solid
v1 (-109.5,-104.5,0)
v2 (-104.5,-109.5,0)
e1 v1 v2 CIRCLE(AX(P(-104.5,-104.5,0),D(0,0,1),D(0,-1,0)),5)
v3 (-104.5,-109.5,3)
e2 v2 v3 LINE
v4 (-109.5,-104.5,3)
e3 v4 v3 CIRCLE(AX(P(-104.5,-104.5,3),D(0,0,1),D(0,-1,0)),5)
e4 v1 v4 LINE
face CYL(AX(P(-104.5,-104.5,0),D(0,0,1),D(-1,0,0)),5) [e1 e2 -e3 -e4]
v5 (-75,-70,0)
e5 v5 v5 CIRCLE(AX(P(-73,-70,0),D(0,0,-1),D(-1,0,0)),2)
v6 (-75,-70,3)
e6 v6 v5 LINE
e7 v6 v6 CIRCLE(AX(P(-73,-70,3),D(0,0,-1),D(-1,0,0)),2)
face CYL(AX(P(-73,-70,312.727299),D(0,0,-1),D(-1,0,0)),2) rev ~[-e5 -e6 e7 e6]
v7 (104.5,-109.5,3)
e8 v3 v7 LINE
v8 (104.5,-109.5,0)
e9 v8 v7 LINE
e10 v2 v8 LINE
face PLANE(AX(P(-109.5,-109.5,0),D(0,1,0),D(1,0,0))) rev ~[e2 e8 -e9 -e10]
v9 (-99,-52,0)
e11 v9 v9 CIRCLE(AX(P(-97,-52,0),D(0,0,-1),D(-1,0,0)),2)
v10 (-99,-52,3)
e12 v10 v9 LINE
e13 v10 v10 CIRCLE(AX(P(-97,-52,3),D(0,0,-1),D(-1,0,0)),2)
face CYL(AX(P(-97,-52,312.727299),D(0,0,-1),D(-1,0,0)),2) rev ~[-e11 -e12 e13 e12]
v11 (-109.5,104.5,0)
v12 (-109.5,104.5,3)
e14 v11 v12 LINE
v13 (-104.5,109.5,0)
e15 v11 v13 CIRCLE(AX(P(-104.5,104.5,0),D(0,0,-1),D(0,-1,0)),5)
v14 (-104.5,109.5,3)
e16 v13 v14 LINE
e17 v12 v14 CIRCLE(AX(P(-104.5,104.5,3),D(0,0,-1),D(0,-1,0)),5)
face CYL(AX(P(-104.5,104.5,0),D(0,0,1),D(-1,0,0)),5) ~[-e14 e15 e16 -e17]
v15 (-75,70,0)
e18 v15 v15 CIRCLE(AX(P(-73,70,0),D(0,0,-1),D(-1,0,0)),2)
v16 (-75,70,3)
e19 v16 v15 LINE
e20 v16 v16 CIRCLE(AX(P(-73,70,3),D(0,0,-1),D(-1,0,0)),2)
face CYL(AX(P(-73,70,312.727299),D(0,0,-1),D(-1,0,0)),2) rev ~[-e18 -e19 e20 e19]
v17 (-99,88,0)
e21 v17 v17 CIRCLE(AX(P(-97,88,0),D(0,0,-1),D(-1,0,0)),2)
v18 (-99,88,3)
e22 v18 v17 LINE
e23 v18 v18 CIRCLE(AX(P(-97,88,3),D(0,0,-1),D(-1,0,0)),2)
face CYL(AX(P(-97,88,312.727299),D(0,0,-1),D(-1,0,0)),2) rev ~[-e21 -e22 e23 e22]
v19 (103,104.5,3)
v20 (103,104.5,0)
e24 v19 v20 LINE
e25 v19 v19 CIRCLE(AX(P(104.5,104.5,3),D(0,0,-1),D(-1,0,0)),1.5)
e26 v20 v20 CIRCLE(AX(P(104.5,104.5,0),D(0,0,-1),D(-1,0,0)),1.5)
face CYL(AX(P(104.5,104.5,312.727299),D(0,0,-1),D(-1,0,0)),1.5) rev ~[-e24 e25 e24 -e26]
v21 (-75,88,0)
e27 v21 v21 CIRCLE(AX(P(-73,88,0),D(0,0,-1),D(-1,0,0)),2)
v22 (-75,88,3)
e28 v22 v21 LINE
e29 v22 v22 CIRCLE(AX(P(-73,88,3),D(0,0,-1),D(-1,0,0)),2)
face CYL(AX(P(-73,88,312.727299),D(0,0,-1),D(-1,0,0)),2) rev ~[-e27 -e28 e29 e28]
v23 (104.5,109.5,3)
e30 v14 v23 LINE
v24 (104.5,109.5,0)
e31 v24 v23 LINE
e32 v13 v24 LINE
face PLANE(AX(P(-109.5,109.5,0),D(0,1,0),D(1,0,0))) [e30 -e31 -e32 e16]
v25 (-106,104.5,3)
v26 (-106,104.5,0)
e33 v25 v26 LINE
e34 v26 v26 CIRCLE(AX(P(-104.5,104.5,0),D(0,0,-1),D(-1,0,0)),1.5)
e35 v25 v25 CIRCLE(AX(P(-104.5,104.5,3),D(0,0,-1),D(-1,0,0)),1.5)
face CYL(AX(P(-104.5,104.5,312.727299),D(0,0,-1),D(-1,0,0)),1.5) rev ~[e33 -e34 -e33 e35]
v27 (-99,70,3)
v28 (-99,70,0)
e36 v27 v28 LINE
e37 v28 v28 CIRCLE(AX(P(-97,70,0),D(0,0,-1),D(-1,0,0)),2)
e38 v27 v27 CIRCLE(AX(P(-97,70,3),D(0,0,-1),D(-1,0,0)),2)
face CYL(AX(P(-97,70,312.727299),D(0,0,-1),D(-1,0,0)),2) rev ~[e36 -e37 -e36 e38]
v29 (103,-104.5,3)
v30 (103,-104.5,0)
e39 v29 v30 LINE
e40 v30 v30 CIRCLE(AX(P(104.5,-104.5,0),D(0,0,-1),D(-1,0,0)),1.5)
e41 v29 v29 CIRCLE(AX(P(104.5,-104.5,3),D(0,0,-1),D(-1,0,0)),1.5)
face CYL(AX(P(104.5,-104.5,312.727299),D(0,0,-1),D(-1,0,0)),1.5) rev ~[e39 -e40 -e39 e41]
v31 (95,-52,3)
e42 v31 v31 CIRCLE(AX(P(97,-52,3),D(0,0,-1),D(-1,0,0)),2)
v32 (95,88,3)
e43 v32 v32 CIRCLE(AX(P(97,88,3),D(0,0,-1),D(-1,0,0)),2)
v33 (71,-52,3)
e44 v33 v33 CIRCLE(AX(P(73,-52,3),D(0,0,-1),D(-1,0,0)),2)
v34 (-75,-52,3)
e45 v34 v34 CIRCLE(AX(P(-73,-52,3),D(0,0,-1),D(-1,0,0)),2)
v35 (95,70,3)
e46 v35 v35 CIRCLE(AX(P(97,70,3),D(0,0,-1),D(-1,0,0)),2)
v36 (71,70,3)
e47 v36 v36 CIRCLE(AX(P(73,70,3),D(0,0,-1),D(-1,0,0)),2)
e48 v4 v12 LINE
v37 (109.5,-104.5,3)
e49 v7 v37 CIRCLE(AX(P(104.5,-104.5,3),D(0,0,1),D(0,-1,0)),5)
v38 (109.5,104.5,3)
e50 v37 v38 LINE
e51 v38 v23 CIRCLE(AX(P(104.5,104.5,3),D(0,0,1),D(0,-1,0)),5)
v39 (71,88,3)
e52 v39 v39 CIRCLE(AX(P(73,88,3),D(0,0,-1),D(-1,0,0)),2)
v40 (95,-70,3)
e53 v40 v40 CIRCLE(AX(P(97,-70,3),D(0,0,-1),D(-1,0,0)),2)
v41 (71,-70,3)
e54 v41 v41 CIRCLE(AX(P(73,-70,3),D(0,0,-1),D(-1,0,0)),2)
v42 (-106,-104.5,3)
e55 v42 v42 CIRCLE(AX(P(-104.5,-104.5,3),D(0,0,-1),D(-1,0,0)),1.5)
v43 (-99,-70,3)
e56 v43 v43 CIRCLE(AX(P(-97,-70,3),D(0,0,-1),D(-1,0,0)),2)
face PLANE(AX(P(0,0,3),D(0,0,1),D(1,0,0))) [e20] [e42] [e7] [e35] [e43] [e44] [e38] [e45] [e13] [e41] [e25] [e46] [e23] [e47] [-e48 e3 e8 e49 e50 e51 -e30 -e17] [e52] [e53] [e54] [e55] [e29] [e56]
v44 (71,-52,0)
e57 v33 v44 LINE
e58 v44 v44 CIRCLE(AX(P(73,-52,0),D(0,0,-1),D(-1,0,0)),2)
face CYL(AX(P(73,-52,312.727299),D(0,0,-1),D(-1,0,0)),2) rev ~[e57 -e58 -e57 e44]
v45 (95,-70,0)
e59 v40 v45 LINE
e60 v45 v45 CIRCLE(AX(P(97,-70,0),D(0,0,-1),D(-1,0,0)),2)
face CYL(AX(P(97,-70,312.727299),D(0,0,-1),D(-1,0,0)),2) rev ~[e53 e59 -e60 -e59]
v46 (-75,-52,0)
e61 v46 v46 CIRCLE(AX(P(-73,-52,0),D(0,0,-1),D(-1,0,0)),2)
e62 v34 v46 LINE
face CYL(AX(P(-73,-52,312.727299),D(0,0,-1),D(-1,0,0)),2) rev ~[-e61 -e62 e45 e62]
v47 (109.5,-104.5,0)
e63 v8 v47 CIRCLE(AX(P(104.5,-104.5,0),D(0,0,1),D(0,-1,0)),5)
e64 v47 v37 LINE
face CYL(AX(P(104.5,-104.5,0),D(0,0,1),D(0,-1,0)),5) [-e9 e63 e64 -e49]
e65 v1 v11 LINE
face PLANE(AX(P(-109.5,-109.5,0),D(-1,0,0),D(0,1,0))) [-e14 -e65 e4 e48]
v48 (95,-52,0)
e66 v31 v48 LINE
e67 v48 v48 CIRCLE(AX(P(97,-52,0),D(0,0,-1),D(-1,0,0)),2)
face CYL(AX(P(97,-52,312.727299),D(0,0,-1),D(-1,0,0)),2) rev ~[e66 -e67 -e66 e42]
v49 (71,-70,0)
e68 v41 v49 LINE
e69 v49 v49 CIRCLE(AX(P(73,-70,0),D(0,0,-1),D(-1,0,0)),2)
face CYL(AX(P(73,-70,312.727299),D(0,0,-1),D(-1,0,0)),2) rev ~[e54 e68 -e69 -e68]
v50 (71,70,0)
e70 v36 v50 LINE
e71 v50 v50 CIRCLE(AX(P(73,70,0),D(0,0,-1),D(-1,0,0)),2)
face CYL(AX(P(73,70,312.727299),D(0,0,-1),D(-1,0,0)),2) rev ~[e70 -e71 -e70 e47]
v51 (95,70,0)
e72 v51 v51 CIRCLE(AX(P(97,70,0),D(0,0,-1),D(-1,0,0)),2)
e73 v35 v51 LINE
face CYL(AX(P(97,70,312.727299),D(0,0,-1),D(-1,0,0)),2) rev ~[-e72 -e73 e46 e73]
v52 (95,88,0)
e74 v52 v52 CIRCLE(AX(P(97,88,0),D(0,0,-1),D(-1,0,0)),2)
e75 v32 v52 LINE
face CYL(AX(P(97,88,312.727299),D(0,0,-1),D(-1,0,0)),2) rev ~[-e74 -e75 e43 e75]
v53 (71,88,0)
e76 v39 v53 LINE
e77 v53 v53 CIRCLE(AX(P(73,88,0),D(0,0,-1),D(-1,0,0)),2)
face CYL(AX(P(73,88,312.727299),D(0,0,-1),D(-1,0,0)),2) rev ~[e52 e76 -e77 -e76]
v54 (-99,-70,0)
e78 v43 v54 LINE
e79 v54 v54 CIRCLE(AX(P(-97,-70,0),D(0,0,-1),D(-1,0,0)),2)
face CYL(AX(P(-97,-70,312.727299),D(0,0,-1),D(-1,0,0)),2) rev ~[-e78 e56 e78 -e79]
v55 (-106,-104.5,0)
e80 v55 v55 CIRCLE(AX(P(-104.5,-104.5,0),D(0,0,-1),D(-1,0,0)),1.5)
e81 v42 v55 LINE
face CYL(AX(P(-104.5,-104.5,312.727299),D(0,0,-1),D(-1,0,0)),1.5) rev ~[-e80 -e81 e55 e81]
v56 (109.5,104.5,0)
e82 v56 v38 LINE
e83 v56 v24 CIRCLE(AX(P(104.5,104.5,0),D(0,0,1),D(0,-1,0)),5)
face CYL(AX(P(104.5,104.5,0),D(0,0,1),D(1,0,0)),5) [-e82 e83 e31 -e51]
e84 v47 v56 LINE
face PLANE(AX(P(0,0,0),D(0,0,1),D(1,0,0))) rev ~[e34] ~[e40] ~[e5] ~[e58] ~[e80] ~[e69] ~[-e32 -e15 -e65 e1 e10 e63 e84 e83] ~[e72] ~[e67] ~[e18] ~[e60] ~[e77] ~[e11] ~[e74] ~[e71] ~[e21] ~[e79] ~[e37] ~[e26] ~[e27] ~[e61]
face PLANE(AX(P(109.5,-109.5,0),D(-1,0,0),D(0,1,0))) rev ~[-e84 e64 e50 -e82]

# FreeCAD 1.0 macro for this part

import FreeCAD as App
import Part
import Sketcher

V = App.Vector


def edges_at(feature, points):
    """Names of the edges that pass closest to the given points."""
    edges = feature.Shape.Edges
    near = lambda p: min(range(len(edges)), key=lambda i: edges[i].distToShape(Part.Vertex(*p))[0])
    return sorted({f"Edge{near(p) + 1}" for p in points})

doc = App.newDocument("Part")
body = doc.addObject("PartDesign::Body", "Body")

sketch1 = body.newObject("Sketcher::SketchObject", "Sketch")
sketch1.AttachmentSupport = (doc.getObject("XY_Plane"), [""])
sketch1.MapMode = "FlatFace"
sketch1.addGeometry([
    Part.LineSegment(V(-110, 110, 0), V(-110, -110, 0)),
    Part.LineSegment(V(-110, -110, 0), V(110, -110, 0)),
    Part.LineSegment(V(110, -110, 0), V(110, 110, 0)),
    Part.LineSegment(V(110, 110, 0), V(-110, 110, 0)),
], False)
sketch1.addConstraint([
    Sketcher.Constraint("Coincident", 0, 2, 1, 1),
    Sketcher.Constraint("Coincident", 1, 2, 2, 1),
    Sketcher.Constraint("Coincident", 2, 2, 3, 1),
    Sketcher.Constraint("Coincident", 3, 2, 0, 1),
    Sketcher.Constraint("Vertical", 0),
    Sketcher.Constraint("Horizontal", 1),
    Sketcher.Constraint("Vertical", 2),
    Sketcher.Constraint("Horizontal", 3),
    Sketcher.Constraint("Symmetric", 0, 2, 2, 2, -1, 1),
    Sketcher.Constraint("Equal", 3, 0),
    Sketcher.Constraint("DistanceX", 1, 1, 1, 2, 219.0),
])
pad1 = body.newObject("PartDesign::Pad", "Pad")
pad1.Profile = sketch1
pad1.Length = 3
doc.recompute()

fillet = body.newObject("PartDesign::Fillet", "Fillet")
fillet.Base = (pad1, edges_at(pad1, [
    (109.5, -109.5, 1.5),
    (109.5, 109.5, 1.5),
    (-109.5, 109.5, 1.5),
    (-109.5, -109.5, 1.5),
]))
fillet.Radius = 5

sketch2 = body.newObject("Sketcher::SketchObject", "Sketch001")
sketch2.AttachmentSupport = (doc.getObject("XY_Plane"), [""])
sketch2.MapMode = "FlatFace"
sketch2.AttachmentOffset = App.Placement(V(0, 0, 3), App.Rotation())
sketch2.addGeometry([
    Part.Circle(V(-104.5, -104.5, 0), V(0, 0, 1), 1.5),
    Part.Circle(V(104.5, -104.5, 0), V(0, 0, 1), 1.5),
    Part.Circle(V(104.5, 104.5, 0), V(0, 0, 1), 1.5),
    Part.Circle(V(-104.5, 104.5, 0), V(0, 0, 1), 1.5),
], False)
sketch2.addConstraint([
    Sketcher.Constraint("Equal", 0, 1),
    Sketcher.Constraint("Equal", 1, 2),
    Sketcher.Constraint("Equal", 2, 3),
    Sketcher.Constraint("Symmetric", 0, 3, 2, 3, -1, 1),
    Sketcher.Constraint("Symmetric", 1, 3, 3, 3, -1, 1),
    Sketcher.Constraint("Symmetric", 0, 3, 1, 3, -2),
    Sketcher.Constraint("Diameter", 0, 3.0),
    Sketcher.Constraint("DistanceX", 0, 3, 1, 3, 209.0),
    Sketcher.Constraint("DistanceY", 1, 3, 2, 3, 209.0),
])
doc.recompute()
hole = body.newObject("PartDesign::Hole", "Hole")
hole.Profile = sketch2
hole.ThreadType = "None"
hole.Diameter = 3
hole.DepthType = "ThroughAll"

sketch3 = body.newObject("Sketcher::SketchObject", "Sketch002")
sketch3.AttachmentSupport = (doc.getObject("XY_Plane"), [""])
sketch3.MapMode = "FlatFace"
sketch3.AttachmentOffset = App.Placement(V(0, 0, 3), App.Rotation())
sketch3.addGeometry([
    Part.Circle(V(-97, -70, 0), V(0, 0, 1), 2),
    Part.Circle(V(-73, -70, 0), V(0, 0, 1), 2),
    Part.Circle(V(-73, -52, 0), V(0, 0, 1), 2),
    Part.Circle(V(-97, -52, 0), V(0, 0, 1), 2),
    Part.Circle(V(-97, 70, 0), V(0, 0, 1), 2),
    Part.Circle(V(-73, 70, 0), V(0, 0, 1), 2),
    Part.Circle(V(-73, 88, 0), V(0, 0, 1), 2),
    Part.Circle(V(-97, 88, 0), V(0, 0, 1), 2),
    Part.Circle(V(73, 88, 0), V(0, 0, 1), 2),
    Part.Circle(V(73, 70, 0), V(0, 0, 1), 2),
    Part.Circle(V(97, 70, 0), V(0, 0, 1), 2),
    Part.Circle(V(97, 88, 0), V(0, 0, 1), 2),
    Part.Circle(V(97, -52, 0), V(0, 0, 1), 2),
    Part.Circle(V(97, -70, 0), V(0, 0, 1), 2),
    Part.Circle(V(73, -70, 0), V(0, 0, 1), 2),
    Part.Circle(V(73, -52, 0), V(0, 0, 1), 2),
], False)
sketch3.addConstraint([
    Sketcher.Constraint("Equal", 0, 1),
    Sketcher.Constraint("Equal", 1, 2),
    Sketcher.Constraint("Equal", 2, 3),
    Sketcher.Constraint("Equal", 3, 4),
    Sketcher.Constraint("Equal", 4, 5),
    Sketcher.Constraint("Equal", 5, 6),
    Sketcher.Constraint("Equal", 6, 7),
    Sketcher.Constraint("Equal", 7, 8),
    Sketcher.Constraint("Equal", 8, 9),
    Sketcher.Constraint("Equal", 9, 10),
    Sketcher.Constraint("Equal", 10, 11),
    Sketcher.Constraint("Equal", 11, 12),
    Sketcher.Constraint("Equal", 12, 13),
    Sketcher.Constraint("Equal", 13, 14),
    Sketcher.Constraint("Equal", 14, 15),
    Sketcher.Constraint("Symmetric", 1, 3, 9, 3, -1, 1),
    Sketcher.Constraint("Symmetric", 0, 3, 10, 3, -1, 1),
    Sketcher.Constraint("Symmetric", 4, 3, 13, 3, -1, 1),
    Sketcher.Constraint("Symmetric", 5, 3, 14, 3, -1, 1),
    Sketcher.Constraint("Symmetric", 6, 3, 8, 3, -2),
    Sketcher.Constraint("Symmetric", 5, 3, 9, 3, -2),
    Sketcher.Constraint("Symmetric", 4, 3, 10, 3, -2),
    Sketcher.Constraint("Symmetric", 7, 3, 11, 3, -2),
    Sketcher.Constraint("Symmetric", 3, 3, 12, 3, -2),
    Sketcher.Constraint("Symmetric", 2, 3, 15, 3, -2),
    Sketcher.Constraint("Horizontal", 0, 3, 1, 3),
    Sketcher.Constraint("Horizontal", 2, 3, 3, 3),
    Sketcher.Constraint("Horizontal", 6, 3, 7, 3),
    Sketcher.Constraint("Vertical", 1, 3, 2, 3),
    Sketcher.Constraint("Vertical", 0, 3, 3, 3),
    Sketcher.Constraint("Vertical", 5, 3, 6, 3),
    Sketcher.Constraint("Vertical", 4, 3, 7, 3),
    Sketcher.Constraint("Diameter", 0, 4.0),
    Sketcher.Constraint("DistanceX", 0, 3, -1, 1, 97.0),
    Sketcher.Constraint("DistanceY", 0, 3, -1, 1, 70.0),
    Sketcher.Constraint("DistanceX", 1, 3, -1, 1, 73.0),
    Sketcher.Constraint("DistanceY", 2, 3, -1, 1, 52.0),
    Sketcher.Constraint("DistanceY", -1, 1, 6, 3, 88.0),
])
doc.recompute()
hole2 = body.newObject("PartDesign::Hole", "Hole001")
hole2.Profile = sketch3
hole2.ThreadType = "None"
hole2.Diameter = 4
hole2.DepthType = "ThroughAll"

doc.recompute()
